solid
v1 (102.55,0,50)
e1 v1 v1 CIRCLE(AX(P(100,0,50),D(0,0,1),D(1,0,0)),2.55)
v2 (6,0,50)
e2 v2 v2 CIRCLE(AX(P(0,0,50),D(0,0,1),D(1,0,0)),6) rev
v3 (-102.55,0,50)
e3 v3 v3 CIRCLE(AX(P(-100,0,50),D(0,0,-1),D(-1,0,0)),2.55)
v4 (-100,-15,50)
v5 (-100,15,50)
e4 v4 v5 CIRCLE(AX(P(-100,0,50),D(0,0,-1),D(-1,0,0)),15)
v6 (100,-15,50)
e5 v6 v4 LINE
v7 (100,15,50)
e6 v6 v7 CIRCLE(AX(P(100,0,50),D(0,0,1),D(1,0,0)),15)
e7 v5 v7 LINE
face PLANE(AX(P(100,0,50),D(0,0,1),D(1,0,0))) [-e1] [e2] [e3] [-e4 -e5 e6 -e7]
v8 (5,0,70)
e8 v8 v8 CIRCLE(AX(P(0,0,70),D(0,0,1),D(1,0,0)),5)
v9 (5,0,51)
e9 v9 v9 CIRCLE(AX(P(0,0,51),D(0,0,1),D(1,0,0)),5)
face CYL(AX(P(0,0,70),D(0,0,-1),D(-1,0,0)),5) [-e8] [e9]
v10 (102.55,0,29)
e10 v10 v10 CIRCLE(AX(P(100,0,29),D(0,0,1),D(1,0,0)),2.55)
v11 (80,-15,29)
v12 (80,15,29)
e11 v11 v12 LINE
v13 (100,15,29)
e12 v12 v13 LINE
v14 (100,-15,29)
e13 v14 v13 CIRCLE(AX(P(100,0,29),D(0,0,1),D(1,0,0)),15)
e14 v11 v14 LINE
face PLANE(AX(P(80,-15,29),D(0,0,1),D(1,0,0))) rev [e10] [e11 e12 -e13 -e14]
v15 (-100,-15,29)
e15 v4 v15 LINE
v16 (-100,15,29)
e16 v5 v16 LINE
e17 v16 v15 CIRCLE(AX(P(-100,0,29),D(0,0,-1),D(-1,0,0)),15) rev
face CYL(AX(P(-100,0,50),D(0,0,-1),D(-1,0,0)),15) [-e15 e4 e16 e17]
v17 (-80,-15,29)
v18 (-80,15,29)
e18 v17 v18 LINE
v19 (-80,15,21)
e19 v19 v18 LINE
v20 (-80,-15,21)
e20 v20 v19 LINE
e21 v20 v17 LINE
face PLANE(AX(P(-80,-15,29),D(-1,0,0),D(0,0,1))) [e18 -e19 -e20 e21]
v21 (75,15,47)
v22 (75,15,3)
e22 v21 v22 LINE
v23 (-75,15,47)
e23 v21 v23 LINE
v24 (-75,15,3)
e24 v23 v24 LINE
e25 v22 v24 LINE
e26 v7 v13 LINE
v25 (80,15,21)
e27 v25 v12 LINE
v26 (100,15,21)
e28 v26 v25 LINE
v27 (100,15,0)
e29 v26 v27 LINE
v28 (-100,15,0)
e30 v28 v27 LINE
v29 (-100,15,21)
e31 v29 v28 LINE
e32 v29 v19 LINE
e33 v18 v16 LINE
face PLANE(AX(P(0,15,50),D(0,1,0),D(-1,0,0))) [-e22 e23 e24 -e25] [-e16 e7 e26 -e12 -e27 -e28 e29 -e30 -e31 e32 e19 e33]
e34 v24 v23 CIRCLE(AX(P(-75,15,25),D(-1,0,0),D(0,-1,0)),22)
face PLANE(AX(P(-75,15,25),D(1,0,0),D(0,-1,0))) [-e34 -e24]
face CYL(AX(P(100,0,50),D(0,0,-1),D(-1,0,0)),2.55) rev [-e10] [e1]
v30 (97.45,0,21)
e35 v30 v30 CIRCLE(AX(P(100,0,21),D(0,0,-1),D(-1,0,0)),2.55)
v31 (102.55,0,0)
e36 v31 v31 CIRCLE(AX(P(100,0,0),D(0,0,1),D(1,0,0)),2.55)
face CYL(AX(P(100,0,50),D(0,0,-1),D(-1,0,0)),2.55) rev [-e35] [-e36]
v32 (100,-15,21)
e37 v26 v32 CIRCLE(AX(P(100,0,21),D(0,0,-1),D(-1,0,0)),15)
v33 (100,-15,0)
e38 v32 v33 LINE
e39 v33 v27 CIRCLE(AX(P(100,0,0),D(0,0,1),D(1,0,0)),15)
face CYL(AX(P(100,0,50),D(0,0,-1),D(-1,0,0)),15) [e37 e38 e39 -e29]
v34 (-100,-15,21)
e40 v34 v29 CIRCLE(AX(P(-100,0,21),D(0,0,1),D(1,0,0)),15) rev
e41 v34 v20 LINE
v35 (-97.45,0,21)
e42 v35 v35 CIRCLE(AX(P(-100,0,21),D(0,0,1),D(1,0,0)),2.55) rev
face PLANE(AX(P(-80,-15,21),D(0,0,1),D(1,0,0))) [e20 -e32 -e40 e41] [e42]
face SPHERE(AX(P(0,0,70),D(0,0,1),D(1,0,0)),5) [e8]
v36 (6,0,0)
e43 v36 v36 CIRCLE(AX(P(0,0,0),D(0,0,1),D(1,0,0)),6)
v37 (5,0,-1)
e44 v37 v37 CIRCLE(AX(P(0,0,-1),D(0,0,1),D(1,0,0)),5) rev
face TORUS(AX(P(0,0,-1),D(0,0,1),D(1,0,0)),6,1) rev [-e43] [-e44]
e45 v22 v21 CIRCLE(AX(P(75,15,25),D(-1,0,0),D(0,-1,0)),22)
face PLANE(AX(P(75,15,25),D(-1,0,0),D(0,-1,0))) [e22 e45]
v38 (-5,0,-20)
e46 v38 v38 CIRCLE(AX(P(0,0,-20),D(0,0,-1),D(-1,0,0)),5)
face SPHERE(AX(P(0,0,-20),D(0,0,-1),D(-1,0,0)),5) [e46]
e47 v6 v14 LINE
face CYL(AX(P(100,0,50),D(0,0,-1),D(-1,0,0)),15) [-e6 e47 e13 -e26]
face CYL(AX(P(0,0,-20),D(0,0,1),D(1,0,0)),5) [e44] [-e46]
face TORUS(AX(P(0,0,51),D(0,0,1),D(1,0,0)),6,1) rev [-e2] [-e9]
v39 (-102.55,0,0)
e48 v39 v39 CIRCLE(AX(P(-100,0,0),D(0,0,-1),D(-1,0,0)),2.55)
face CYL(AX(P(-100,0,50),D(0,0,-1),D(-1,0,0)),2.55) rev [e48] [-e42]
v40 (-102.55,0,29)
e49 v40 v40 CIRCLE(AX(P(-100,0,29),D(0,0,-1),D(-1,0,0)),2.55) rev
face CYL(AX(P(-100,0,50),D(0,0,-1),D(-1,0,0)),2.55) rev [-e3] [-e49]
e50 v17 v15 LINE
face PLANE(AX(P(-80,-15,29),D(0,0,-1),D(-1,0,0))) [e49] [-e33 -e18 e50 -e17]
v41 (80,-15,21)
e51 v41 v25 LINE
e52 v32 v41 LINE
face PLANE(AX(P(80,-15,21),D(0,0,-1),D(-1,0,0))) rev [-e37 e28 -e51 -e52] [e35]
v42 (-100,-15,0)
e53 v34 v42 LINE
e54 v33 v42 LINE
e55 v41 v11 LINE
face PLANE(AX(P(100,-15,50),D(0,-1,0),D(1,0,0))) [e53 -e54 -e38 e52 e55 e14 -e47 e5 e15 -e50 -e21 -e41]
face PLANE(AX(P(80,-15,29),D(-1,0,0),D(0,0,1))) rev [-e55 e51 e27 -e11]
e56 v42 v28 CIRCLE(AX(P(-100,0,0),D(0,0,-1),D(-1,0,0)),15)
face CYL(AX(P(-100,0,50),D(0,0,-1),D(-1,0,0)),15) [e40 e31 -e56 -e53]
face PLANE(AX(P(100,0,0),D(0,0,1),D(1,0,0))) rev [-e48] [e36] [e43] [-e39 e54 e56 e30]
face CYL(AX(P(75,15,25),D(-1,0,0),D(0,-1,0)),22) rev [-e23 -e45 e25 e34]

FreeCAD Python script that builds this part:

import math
import FreeCAD as App
import Part
import Sketcher

V = App.Vector
Q = App.Units.Quantity


def edges_at(feature, points):
    """Names of the edges that pass closest to the given points."""
    edges = feature.Shape.Edges
    near = lambda p: min(range(len(edges)), key=lambda i: edges[i].distToShape(Part.Vertex(*p))[0])
    return sorted({f"Edge{near(p) + 1}" for p in points})


def add_polygon(sketch, points):
    """Adds a closed chain of lines whose ends are joined by coincident constraints."""
    first, n = sketch.GeometryCount, len(points)
    for a, b in zip(points, points[1:] + points[:1]):
        sketch.addGeometry(Part.LineSegment(App.Vector(*a, 0), App.Vector(*b, 0)), False)
    for i in range(n):
        sketch.addConstraint(Sketcher.Constraint("Coincident", first + i, 2, first + (i + 1) % n, 1))

doc = App.newDocument("Part")
body = doc.addObject("PartDesign::Body", "Body")

# Sketch on XY plane
sketch1 = body.newObject("Sketcher::SketchObject", "Sketch")
sketch1.AttachmentSupport = (doc.getObject("XY_Plane"), [""])
sketch1.MapMode = "FlatFace"
sketch1.addGeometry(Part.LineSegment(V(100, 15, 0), V(0, 15, 0)), False)
sketch1.addGeometry(Part.LineSegment(V(0, 15, 0), V(0, -15, 0)), False)
sketch1.addGeometry(Part.LineSegment(V(0, -15, 0), V(100, -15, 0)), False)
sketch1.addGeometry(Part.ArcOfCircle(Part.Circle(V(100, 0, 0), V(0, 0, 1), 15), math.radians(-90), math.radians(90)), False)
sketch1.addGeometry(Part.Circle(V(100, 0, 0), V(0, 0, 1), 2.5), False)
sketch1.addConstraint(Sketcher.Constraint("Coincident", 0, 2, 1, 1))
sketch1.addConstraint(Sketcher.Constraint("Coincident", 1, 2, 2, 1))
sketch1.addConstraint(Sketcher.Constraint("Tangent", 2, 2, 3, 1))
sketch1.addConstraint(Sketcher.Constraint("Tangent", 3, 2, 0, 1))
sketch1.addConstraint(Sketcher.Constraint("Horizontal", 0))
sketch1.addConstraint(Sketcher.Constraint("Vertical", 1))
sketch1.addConstraint(Sketcher.Constraint("Horizontal", 2))
sketch1.addConstraint(Sketcher.Constraint("Coincident", 4, 3, 3, 3))
sketch1.addConstraint(Sketcher.Constraint("Symmetric", 0, 2, 1, 2, -1, 1))
sketch1.addConstraint(Sketcher.Constraint("Radius", 3, Q("15 mm")))
sketch1.addConstraint(Sketcher.Constraint("Diameter", 4, Q("5.1 mm")))
sketch1.addConstraint(Sketcher.Constraint("DistanceX", 0, 2, 0, 1, Q("100 mm")))
pad1 = body.newObject("PartDesign::Pad", "Pad")
pad1.Profile = sketch1
pad1.Length = 50

# Sketch on XZ plane
sketch2 = body.newObject("Sketcher::SketchObject", "Sketch001")
sketch2.AttachmentSupport = (doc.getObject("XZ_Plane"), [""])
sketch2.MapMode = "FlatFace"
sketch2.AttachmentOffset = App.Placement(V(0, 0, -15), App.Rotation())
add_polygon(sketch2, [(80, 21), (80, 29), (115, 29), (115, 21)])  # lines 0-3
sketch2.addConstraint(Sketcher.Constraint("Vertical", 0))
sketch2.addConstraint(Sketcher.Constraint("Horizontal", 1))
sketch2.addConstraint(Sketcher.Constraint("Vertical", 2))
sketch2.addConstraint(Sketcher.Constraint("Horizontal", 3))
sketch2.addConstraint(Sketcher.Constraint("DistanceX", 1, 1, 1, 2, Q("35 mm")))
sketch2.addConstraint(Sketcher.Constraint("DistanceY", 0, 1, 0, 2, Q("8 mm")))
sketch2.addConstraint(Sketcher.Constraint("DistanceX", -1, 1, 0, 2, Q("80 mm")))
sketch2.addConstraint(Sketcher.Constraint("DistanceY", -1, 1, 0, 2, Q("29 mm")))
pocket1 = body.newObject("PartDesign::Pocket", "Pocket")
pocket1.Profile = sketch2
pocket1.Type = "ThroughAll"
pocket1.Reversed = True

# Sketch on YZ plane
sketch3 = body.newObject("Sketcher::SketchObject", "Sketch002")
sketch3.AttachmentSupport = (doc.getObject("YZ_Plane"), [""])
sketch3.MapMode = "FlatFace"
sketch3.addGeometry(Part.LineSegment(V(15, 47, 0), V(15, 3, 0)), False)
sketch3.addGeometry(Part.ArcOfCircle(Part.Circle(V(15, 25, 0), V(0, 0, 1), 22), math.radians(90), math.radians(270)), False)
sketch3.addConstraint(Sketcher.Constraint("Coincident", 0, 1, 1, 1))
sketch3.addConstraint(Sketcher.Constraint("Coincident", 1, 2, 0, 2))
sketch3.addConstraint(Sketcher.Constraint("Vertical", 0))
sketch3.addConstraint(Sketcher.Constraint("Vertical", 1, 3, 0, 1))
sketch3.addConstraint(Sketcher.Constraint("Radius", 1, Q("22 mm")))
sketch3.addConstraint(Sketcher.Constraint("DistanceX", -1, 1, 1, 3, Q("15 mm")))
sketch3.addConstraint(Sketcher.Constraint("DistanceY", -1, 1, 1, 3, Q("25 mm")))
pocket2 = body.newObject("PartDesign::Pocket", "Pocket001")
pocket2.Profile = sketch3
pocket2.Length = 75
pocket2.Reversed = True
doc.recompute()

mirrored = body.newObject("PartDesign::Mirrored", "Mirrored")
mirrored.Originals = [pad1, pocket1, pocket2]
mirrored.MirrorPlane = (doc.getObject("YZ_Plane"), [""])
body.Tip = mirrored

# Sketch on XY plane
sketch4 = body.newObject("Sketcher::SketchObject", "Sketch003")
sketch4.AttachmentSupport = (doc.getObject("XY_Plane"), [""])
sketch4.MapMode = "FlatFace"
sketch4.AttachmentOffset = App.Placement(V(0, 0, 50), App.Rotation())
sketch4.addGeometry(Part.Circle(V(0, 0, 0), V(0, 0, 1), 5), False)
sketch4.addConstraint(Sketcher.Constraint("Coincident", 0, 3, -1, 1))
sketch4.addConstraint(Sketcher.Constraint("Diameter", 0, Q("10 mm")))
pad2 = body.newObject("PartDesign::Pad", "Pad001")
pad2.Profile = sketch4
pad2.Length = 20

# Sketch on XY plane
sketch5 = body.newObject("Sketcher::SketchObject", "Sketch004")
sketch5.AttachmentSupport = (doc.getObject("XY_Plane"), [""])
sketch5.MapMode = "FlatFace"
sketch5.AttachmentOffset = App.Placement(V(0, 0, 70), App.Rotation())
sketch5.addGeometry(Part.LineSegment(V(0, 5, 0), V(0, -5, 0)), False)
sketch5.addGeometry(Part.ArcOfCircle(Part.Circle(V(0, 0, 0), V(0, 0, 1), 5), math.radians(-90), math.radians(90)), False)
sketch5.addConstraint(Sketcher.Constraint("Coincident", 0, 1, 1, 2))
sketch5.addConstraint(Sketcher.Constraint("Coincident", 1, 1, 0, 2))
sketch5.addConstraint(Sketcher.Constraint("Vertical", 0))
sketch5.addConstraint(Sketcher.Constraint("Coincident", 1, 3, -1, 1))
sketch5.addConstraint(Sketcher.Constraint("PointOnObject", 0, 1, -2))
sketch5.addConstraint(Sketcher.Constraint("Radius", 1, Q("5 mm")))
revolution = body.newObject("PartDesign::Revolution", "Revolution")
revolution.Profile = sketch5
revolution.ReferenceAxis = (sketch5, ["V_Axis"])
revolution.Angle = 180
revolution.Reversed = True
doc.recompute()

datumplane = body.newObject("PartDesign::Plane", "DatumPlane")
datumplane.AttachmentSupport = (doc.getObject("XY_Plane"), [""])
datumplane.MapMode = "FlatFace"
datumplane.AttachmentOffset = App.Placement(V(0, 0, 25), App.Rotation())
mirrored2 = body.newObject("PartDesign::Mirrored", "Mirrored001")
mirrored2.Originals = [pad2, revolution]
mirrored2.MirrorPlane = (datumplane, [""])
body.Tip = mirrored2
doc.recompute()

fillet = body.newObject("PartDesign::Fillet", "Fillet")
fillet.Base = (mirrored2, edges_at(mirrored2, [(-5, 0, 50), (-5, 0, 0)]))
fillet.Radius = 1

doc.recompute()
